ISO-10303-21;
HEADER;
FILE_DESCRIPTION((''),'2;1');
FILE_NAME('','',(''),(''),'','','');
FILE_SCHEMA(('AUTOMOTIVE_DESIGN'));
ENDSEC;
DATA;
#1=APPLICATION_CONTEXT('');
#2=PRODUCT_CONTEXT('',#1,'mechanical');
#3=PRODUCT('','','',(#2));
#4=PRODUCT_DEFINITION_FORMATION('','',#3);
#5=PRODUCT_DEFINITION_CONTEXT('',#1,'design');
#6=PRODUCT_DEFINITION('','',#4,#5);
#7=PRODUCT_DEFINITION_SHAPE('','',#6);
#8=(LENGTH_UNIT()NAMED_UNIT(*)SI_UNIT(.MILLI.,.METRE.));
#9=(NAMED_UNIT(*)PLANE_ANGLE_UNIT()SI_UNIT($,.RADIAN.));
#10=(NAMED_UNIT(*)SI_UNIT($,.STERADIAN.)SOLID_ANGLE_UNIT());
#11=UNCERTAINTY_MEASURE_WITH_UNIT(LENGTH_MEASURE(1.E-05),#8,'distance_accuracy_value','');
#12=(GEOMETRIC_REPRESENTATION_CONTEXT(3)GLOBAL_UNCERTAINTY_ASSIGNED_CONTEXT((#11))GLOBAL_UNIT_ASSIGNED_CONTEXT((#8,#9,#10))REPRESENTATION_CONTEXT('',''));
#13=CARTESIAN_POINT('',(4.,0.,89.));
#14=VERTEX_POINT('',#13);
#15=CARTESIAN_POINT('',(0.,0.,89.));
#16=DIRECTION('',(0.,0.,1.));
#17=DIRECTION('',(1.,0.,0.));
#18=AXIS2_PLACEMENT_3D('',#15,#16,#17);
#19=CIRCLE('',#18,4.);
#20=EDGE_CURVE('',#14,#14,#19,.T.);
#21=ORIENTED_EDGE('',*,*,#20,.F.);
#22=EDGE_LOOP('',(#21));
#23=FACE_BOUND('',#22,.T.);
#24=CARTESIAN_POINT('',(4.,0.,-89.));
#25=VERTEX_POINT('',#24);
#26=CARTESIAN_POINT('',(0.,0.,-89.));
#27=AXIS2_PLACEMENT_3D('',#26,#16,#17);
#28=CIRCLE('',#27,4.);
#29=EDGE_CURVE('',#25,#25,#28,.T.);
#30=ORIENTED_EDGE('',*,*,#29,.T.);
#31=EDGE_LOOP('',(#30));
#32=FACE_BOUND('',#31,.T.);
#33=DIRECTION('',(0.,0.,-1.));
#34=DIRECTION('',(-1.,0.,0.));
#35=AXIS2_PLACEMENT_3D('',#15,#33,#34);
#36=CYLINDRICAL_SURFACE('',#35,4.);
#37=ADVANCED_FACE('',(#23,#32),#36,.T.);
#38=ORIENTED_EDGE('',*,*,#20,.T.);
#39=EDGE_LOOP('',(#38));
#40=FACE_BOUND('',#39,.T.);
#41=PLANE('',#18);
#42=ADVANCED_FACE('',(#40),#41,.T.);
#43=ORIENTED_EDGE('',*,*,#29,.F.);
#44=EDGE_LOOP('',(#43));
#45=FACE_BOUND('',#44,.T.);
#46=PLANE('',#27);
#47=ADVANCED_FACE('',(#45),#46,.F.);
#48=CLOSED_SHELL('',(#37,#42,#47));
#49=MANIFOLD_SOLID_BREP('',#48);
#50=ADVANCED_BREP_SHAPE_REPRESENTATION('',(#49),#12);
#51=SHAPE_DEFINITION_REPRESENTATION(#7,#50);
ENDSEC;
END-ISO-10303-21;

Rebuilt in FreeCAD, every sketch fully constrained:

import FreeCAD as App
import Part
import Sketcher

V = App.Vector
Q = App.Units.Quantity

doc = App.newDocument("Part")
body = doc.addObject("PartDesign::Body", "Body")

# Sketch on XY plane
sketch1 = doc.addObject("Sketcher::SketchObject", "Sketch")
body.addObject(sketch1)
sketch1.AttachmentSupport = (doc.XY_Plane, [""])
sketch1.MapMode = "FlatFace"
sketch1.addGeometry(Part.Circle(V(0, 0, 0), V(0, 0, 1), 4), False)
sketch1.addConstraint(Sketcher.Constraint("Coincident", 0, 3, -1, 1))
sketch1.addConstraint(Sketcher.Constraint("Diameter", 0, Q("8 mm")))
pad1 = doc.addObject("PartDesign::Pad", "Pad")
body.addObject(pad1)
pad1.Profile = sketch1
pad1.Length = 178
pad1.Midplane = True

doc.recompute()
